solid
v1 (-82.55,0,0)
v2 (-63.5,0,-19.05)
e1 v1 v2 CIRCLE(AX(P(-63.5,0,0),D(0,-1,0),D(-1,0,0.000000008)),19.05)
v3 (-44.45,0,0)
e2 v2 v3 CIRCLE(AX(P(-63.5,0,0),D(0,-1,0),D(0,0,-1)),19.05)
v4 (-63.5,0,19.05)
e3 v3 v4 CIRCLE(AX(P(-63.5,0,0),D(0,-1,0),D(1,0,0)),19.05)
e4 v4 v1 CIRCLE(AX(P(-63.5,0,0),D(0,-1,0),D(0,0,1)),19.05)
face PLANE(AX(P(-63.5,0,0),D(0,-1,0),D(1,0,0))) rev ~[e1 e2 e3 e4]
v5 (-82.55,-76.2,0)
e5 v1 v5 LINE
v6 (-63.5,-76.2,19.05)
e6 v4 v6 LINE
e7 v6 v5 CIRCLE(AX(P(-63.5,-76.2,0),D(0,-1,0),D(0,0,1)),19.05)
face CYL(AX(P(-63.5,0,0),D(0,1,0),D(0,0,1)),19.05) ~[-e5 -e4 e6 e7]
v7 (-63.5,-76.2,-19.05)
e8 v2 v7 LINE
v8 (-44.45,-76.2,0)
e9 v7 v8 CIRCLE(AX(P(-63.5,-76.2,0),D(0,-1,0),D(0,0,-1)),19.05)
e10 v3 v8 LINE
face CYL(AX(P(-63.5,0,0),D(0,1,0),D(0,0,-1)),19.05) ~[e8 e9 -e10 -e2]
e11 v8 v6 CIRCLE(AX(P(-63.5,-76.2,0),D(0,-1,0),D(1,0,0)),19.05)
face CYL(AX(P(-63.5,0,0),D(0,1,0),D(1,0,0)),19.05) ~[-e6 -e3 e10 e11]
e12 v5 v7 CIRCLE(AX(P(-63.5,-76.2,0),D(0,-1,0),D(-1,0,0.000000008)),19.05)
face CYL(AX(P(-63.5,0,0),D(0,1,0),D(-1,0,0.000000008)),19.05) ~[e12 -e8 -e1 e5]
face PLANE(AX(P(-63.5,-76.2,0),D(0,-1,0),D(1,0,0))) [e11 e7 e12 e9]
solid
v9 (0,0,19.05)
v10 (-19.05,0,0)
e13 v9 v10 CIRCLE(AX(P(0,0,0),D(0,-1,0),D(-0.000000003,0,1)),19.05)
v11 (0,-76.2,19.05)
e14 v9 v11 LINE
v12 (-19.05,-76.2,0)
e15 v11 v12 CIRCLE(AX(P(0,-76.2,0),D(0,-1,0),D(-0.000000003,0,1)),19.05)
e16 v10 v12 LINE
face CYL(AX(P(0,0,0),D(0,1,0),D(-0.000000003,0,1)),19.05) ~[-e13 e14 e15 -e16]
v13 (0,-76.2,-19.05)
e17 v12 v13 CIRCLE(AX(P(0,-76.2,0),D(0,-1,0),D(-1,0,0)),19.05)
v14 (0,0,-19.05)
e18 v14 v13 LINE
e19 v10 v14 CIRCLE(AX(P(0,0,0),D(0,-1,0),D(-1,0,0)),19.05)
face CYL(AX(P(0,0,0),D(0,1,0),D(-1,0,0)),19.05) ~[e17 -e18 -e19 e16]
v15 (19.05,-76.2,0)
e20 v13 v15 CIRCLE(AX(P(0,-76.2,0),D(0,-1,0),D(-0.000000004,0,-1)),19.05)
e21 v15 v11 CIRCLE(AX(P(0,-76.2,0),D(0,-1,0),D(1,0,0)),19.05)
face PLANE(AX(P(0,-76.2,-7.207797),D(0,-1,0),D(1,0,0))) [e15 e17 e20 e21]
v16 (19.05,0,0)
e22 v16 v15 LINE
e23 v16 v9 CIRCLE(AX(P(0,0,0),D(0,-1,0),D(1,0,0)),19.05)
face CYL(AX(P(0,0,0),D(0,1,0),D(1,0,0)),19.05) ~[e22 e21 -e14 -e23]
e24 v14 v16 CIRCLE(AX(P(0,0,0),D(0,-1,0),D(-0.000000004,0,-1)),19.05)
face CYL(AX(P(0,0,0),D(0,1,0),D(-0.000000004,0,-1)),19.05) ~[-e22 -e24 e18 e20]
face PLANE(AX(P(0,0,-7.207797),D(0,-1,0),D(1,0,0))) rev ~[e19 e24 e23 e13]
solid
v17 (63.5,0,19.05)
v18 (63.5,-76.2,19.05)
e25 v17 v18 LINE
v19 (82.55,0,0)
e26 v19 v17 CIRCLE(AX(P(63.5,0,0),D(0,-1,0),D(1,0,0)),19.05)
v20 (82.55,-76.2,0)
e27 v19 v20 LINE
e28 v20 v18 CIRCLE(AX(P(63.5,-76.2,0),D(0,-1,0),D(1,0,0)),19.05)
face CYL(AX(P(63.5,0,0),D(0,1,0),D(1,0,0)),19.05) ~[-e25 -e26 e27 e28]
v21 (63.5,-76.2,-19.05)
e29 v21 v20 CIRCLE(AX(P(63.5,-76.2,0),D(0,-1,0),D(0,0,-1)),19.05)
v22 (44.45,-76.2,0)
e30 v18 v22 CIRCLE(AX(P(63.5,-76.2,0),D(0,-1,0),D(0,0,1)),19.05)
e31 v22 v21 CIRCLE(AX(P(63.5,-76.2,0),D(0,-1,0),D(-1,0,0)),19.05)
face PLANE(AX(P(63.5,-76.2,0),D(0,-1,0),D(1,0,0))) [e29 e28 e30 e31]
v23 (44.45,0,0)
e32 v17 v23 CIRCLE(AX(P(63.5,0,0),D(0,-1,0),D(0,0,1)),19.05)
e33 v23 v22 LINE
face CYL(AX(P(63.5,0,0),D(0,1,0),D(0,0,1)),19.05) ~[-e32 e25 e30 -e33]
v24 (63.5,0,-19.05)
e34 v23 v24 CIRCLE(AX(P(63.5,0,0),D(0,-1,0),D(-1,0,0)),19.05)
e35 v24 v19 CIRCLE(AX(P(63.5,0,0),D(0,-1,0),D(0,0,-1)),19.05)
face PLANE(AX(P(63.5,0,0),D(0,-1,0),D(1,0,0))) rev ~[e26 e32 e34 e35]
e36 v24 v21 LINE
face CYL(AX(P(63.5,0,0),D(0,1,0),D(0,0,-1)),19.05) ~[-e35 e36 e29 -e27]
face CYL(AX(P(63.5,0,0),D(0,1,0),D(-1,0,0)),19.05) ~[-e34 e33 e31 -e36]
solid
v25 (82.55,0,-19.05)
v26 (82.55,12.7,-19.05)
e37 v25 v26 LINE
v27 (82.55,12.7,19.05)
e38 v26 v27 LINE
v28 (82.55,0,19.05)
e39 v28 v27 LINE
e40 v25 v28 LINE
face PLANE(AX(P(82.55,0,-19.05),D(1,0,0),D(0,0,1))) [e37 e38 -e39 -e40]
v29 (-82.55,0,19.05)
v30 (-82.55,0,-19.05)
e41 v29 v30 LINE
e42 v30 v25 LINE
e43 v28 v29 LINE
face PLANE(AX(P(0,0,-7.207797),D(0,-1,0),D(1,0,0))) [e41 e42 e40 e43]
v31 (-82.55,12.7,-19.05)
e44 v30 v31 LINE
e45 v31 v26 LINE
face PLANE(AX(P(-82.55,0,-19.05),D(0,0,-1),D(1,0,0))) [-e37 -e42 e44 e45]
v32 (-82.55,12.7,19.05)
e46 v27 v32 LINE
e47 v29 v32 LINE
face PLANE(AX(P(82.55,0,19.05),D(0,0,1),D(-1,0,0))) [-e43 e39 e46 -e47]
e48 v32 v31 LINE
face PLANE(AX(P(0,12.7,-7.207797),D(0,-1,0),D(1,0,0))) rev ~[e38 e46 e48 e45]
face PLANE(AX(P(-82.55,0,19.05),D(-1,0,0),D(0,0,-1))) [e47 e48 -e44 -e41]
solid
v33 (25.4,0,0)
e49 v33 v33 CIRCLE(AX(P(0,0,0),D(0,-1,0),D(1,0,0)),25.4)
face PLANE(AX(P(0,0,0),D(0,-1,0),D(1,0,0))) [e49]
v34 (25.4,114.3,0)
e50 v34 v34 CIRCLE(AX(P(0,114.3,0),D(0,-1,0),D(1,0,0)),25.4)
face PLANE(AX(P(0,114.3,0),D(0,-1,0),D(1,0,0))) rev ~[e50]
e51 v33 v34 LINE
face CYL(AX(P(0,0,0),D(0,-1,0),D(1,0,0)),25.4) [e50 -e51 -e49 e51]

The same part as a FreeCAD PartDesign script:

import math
import FreeCAD as App
import Part
import Sketcher
from FreeCAD import Vector
Q = App.Units.Quantity

doc = App.newDocument("Part")
body = doc.addObject("PartDesign::Body", "Body")

# Sketch on XZ plane
sketch1 = body.newObject("Sketcher::SketchObject", "Sketch")
sketch1.AttachmentSupport = (doc.getObject("XZ_Plane"), [""])
sketch1.MapMode = "FlatFace"
sketch1.addGeometry(Part.ArcOfCircle(Part.Circle(Vector(-64, 0, 0), Vector(0, 0, 1), 19), math.radians(0), math.radians(90)), False)
sketch1.addGeometry(Part.ArcOfCircle(Part.Circle(Vector(-64, 0, 0), Vector(0, 0, 1), 19), math.radians(90), math.radians(180)), False)
sketch1.addGeometry(Part.ArcOfCircle(Part.Circle(Vector(-64, 0, 0), Vector(0, 0, 1), 19), math.radians(180), math.radians(270)), False)
sketch1.addGeometry(Part.ArcOfCircle(Part.Circle(Vector(-64, 0, 0), Vector(0, 0, 1), 19), math.radians(-90), math.radians(0)), False)
sketch1.addConstraint(Sketcher.Constraint("Tangent", 0, 2, 1, 1))
sketch1.addConstraint(Sketcher.Constraint("Tangent", 1, 2, 2, 1))
sketch1.addConstraint(Sketcher.Constraint("Tangent", 2, 2, 3, 1))
sketch1.addConstraint(Sketcher.Constraint("Tangent", 3, 2, 0, 1))
sketch1.addConstraint(Sketcher.Constraint("Equal", 0, 1))
sketch1.addConstraint(Sketcher.Constraint("Symmetric", 0, 2, 2, 2, -1))
sketch1.addConstraint(Sketcher.Constraint("PointOnObject", 1, 2, -1))
sketch1.addConstraint(Sketcher.Constraint("PointOnObject", 3, 2, -1))
sketch1.addConstraint(Sketcher.Constraint("Vertical", 3, 3, 0, 2))
sketch1.addConstraint(Sketcher.Constraint("Radius", 0, Q("0.75 in")))
sketch1.addConstraint(Sketcher.Constraint("DistanceX", 0, 3, -1, 1, Q("2.5 in")))
pad1 = body.newObject("PartDesign::Pad", "Pad")
pad1.Profile = sketch1
pad1.Length = Q("3 in")
body2 = doc.addObject("PartDesign::Body", "Body001")

# Sketch on XZ plane
sketch2 = body2.newObject("Sketcher::SketchObject", "Sketch001")
sketch2.AttachmentSupport = (doc.getObject("XZ_Plane001"), [""])
sketch2.MapMode = "FlatFace"
sketch2.addGeometry(Part.ArcOfCircle(Part.Circle(Vector(0, 0, 0), Vector(0, 0, 1), 19), math.radians(-90), math.radians(0)), False)
sketch2.addGeometry(Part.ArcOfCircle(Part.Circle(Vector(0, 0, 0), Vector(0, 0, 1), 19), math.radians(0), math.radians(90)), False)
sketch2.addGeometry(Part.ArcOfCircle(Part.Circle(Vector(0, 0, 0), Vector(0, 0, 1), 19), math.radians(90), math.radians(180)), False)
sketch2.addGeometry(Part.ArcOfCircle(Part.Circle(Vector(0, 0, 0), Vector(0, 0, 1), 19), math.radians(180), math.radians(270)), False)
sketch2.addConstraint(Sketcher.Constraint("Tangent", 0, 2, 1, 1))
sketch2.addConstraint(Sketcher.Constraint("Tangent", 1, 2, 2, 1))
sketch2.addConstraint(Sketcher.Constraint("Tangent", 2, 2, 3, 1))
sketch2.addConstraint(Sketcher.Constraint("Tangent", 3, 2, 0, 1))
sketch2.addConstraint(Sketcher.Constraint("Coincident", 0, 3, -1, 1))
sketch2.addConstraint(Sketcher.Constraint("Equal", 0, 1))
sketch2.addConstraint(Sketcher.Constraint("PointOnObject", 0, 2, -1))
sketch2.addConstraint(Sketcher.Constraint("PointOnObject", 1, 2, -2))
sketch2.addConstraint(Sketcher.Constraint("PointOnObject", 2, 2, -1))
sketch2.addConstraint(Sketcher.Constraint("PointOnObject", 3, 2, -2))
sketch2.addConstraint(Sketcher.Constraint("Radius", 0, Q("0.75 in")))
pad2 = body2.newObject("PartDesign::Pad", "Pad001")
pad2.Profile = sketch2
pad2.Length = Q("3 in")
body3 = doc.addObject("PartDesign::Body", "Body002")

# Sketch on XZ plane
sketch3 = body3.newObject("Sketcher::SketchObject", "Sketch002")
sketch3.AttachmentSupport = (doc.getObject("XZ_Plane002"), [""])
sketch3.MapMode = "FlatFace"
sketch3.addGeometry(Part.ArcOfCircle(Part.Circle(Vector(64, 0, 0), Vector(0, 0, 1), 19), math.radians(90), math.radians(180)), False)
sketch3.addGeometry(Part.ArcOfCircle(Part.Circle(Vector(64, 0, 0), Vector(0, 0, 1), 19), math.radians(180), math.radians(270)), False)
sketch3.addGeometry(Part.ArcOfCircle(Part.Circle(Vector(64, 0, 0), Vector(0, 0, 1), 19), math.radians(-90), math.radians(0)), False)
sketch3.addGeometry(Part.ArcOfCircle(Part.Circle(Vector(64, 0, 0), Vector(0, 0, 1), 19), math.radians(0), math.radians(90)), False)
sketch3.addConstraint(Sketcher.Constraint("Tangent", 0, 2, 1, 1))
sketch3.addConstraint(Sketcher.Constraint("Tangent", 1, 2, 2, 1))
sketch3.addConstraint(Sketcher.Constraint("Tangent", 2, 2, 3, 1))
sketch3.addConstraint(Sketcher.Constraint("Tangent", 3, 2, 0, 1))
sketch3.addConstraint(Sketcher.Constraint("Equal", 0, 1))
sketch3.addConstraint(Sketcher.Constraint("Symmetric", 1, 2, 3, 2, -1))
sketch3.addConstraint(Sketcher.Constraint("PointOnObject", 0, 2, -1))
sketch3.addConstraint(Sketcher.Constraint("PointOnObject", 2, 2, -1))
sketch3.addConstraint(Sketcher.Constraint("Vertical", 3, 3, 1, 2))
sketch3.addConstraint(Sketcher.Constraint("Radius", 0, Q("0.75 in")))
sketch3.addConstraint(Sketcher.Constraint("DistanceX", -1, 1, 0, 3, Q("2.5 in")))
pad3 = body3.newObject("PartDesign::Pad", "Pad002")
pad3.Profile = sketch3
pad3.Length = Q("3 in")
body4 = doc.addObject("PartDesign::Body", "Body003")

# Sketch on XZ plane
sketch4 = body4.newObject("Sketcher::SketchObject", "Sketch003")
sketch4.AttachmentSupport = (doc.getObject("XZ_Plane003"), [""])
sketch4.MapMode = "FlatFace"
sketch4.addGeometry(Part.LineSegment(Vector(-83, 19, 0), Vector(-83, -19, 0)), False)
sketch4.addGeometry(Part.LineSegment(Vector(-83, -19, 0), Vector(83, -19, 0)), False)
sketch4.addGeometry(Part.LineSegment(Vector(83, -19, 0), Vector(83, 19, 0)), False)
sketch4.addGeometry(Part.LineSegment(Vector(83, 19, 0), Vector(-83, 19, 0)), False)
sketch4.addConstraint(Sketcher.Constraint("Coincident", 0, 2, 1, 1))
sketch4.addConstraint(Sketcher.Constraint("Coincident", 1, 2, 2, 1))
sketch4.addConstraint(Sketcher.Constraint("Coincident", 2, 2, 3, 1))
sketch4.addConstraint(Sketcher.Constraint("Coincident", 3, 2, 0, 1))
sketch4.addConstraint(Sketcher.Constraint("Vertical", 0))
sketch4.addConstraint(Sketcher.Constraint("Horizontal", 1))
sketch4.addConstraint(Sketcher.Constraint("Vertical", 2))
sketch4.addConstraint(Sketcher.Constraint("Horizontal", 3))
sketch4.addConstraint(Sketcher.Constraint("Symmetric", 0, 2, 2, 2, -1, 1))
sketch4.addConstraint(Sketcher.Constraint("DistanceX", 1, 1, 1, 2, Q("6.5 in")))
sketch4.addConstraint(Sketcher.Constraint("DistanceY", 0, 2, 0, 1, Q("1.5 in")))
pad4 = body4.newObject("PartDesign::Pad", "Pad003")
pad4.Profile = sketch4
pad4.Length = Q("0.5 in")
pad4.Reversed = True
body5 = doc.addObject("PartDesign::Body", "Body004")

# Sketch on XZ plane
sketch5 = body5.newObject("Sketcher::SketchObject", "Sketch004")
sketch5.AttachmentSupport = (doc.getObject("XZ_Plane004"), [""])
sketch5.MapMode = "FlatFace"
sketch5.addGeometry(Part.Circle(Vector(0, 0, 0), Vector(0, 0, 1), 25), False)
sketch5.addConstraint(Sketcher.Constraint("Coincident", 0, 3, -1, 1))
sketch5.addConstraint(Sketcher.Constraint("Diameter", 0, Q("2 in")))
pad5 = body5.newObject("PartDesign::Pad", "Pad004")
pad5.Profile = sketch5
pad5.Length = Q("4.5 in")
pad5.Reversed = True

doc.recompute()
